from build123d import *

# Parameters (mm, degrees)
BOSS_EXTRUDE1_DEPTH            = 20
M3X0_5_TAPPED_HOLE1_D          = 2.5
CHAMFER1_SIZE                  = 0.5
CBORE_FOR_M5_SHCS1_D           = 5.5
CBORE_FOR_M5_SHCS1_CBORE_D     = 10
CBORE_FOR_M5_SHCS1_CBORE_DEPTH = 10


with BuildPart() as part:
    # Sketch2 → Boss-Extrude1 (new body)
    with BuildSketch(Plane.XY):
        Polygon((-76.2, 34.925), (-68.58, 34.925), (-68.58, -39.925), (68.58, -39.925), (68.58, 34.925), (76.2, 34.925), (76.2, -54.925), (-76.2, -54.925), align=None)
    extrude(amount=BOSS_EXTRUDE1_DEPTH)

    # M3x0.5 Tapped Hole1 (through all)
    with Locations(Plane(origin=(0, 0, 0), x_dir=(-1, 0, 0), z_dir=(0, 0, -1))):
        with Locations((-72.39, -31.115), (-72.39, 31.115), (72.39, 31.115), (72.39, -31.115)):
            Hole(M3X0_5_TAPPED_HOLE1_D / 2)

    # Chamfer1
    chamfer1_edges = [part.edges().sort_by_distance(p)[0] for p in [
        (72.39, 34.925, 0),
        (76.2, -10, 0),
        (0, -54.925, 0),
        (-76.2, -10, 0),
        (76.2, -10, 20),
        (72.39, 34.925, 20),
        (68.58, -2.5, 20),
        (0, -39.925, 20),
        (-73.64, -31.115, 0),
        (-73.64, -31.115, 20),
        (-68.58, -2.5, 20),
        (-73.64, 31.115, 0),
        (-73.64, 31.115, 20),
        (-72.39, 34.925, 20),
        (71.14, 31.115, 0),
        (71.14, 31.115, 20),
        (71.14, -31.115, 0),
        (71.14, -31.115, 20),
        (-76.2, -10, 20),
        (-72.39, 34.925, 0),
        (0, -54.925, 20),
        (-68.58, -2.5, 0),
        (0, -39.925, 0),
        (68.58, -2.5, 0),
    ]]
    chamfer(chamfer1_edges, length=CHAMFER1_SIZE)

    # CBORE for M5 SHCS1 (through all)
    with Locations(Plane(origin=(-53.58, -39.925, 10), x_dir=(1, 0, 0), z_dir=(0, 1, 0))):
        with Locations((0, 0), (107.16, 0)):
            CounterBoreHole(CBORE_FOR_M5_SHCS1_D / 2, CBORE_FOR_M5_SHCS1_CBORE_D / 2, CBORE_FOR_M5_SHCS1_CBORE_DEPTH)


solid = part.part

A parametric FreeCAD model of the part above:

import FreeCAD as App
import Part
import Sketcher
Q = App.Units.Quantity


def edges_at(feature, points):
    """Names of the edges that pass closest to the given points."""
    edges = feature.Shape.Edges
    near = lambda p: min(range(len(edges)), key=lambda i: edges[i].distToShape(Part.Vertex(*p))[0])
    return sorted({f"Edge{near(p) + 1}" for p in points})

doc = App.newDocument("Part")
body = doc.addObject("PartDesign::Body", "Body")

sketch1 = body.newObject("Sketcher::SketchObject", "Sketch")
sketch1.AttachmentSupport = (doc.getObject("XY_Plane"), [""])
sketch1.MapMode = "FlatFace"
sketch1.addGeometry(Part.LineSegment(App.Vector(-68.58, 34.925, 0), App.Vector(-76.2, 34.925, 0)), False)
sketch1.addGeometry(Part.LineSegment(App.Vector(-76.2, 34.925, 0), App.Vector(-76.2, -54.925, 0)), False)
sketch1.addGeometry(Part.LineSegment(App.Vector(-76.2, -54.925, 0), App.Vector(76.2, -54.925, 0)), False)
sketch1.addGeometry(Part.LineSegment(App.Vector(76.2, -54.925, 0), App.Vector(76.2, 34.925, 0)), False)
sketch1.addGeometry(Part.LineSegment(App.Vector(76.2, 34.925, 0), App.Vector(68.58, 34.925, 0)), False)
sketch1.addGeometry(Part.LineSegment(App.Vector(68.58, 34.925, 0), App.Vector(68.58, -39.925, 0)), False)
sketch1.addGeometry(Part.LineSegment(App.Vector(68.58, -39.925, 0), App.Vector(-68.58, -39.925, 0)), False)
sketch1.addGeometry(Part.LineSegment(App.Vector(-68.58, -39.925, 0), App.Vector(-68.58, 34.925, 0)), False)
sketch1.addConstraint(Sketcher.Constraint("Coincident", 0, 2, 1, 1))
sketch1.addConstraint(Sketcher.Constraint("Coincident", 1, 2, 2, 1))
sketch1.addConstraint(Sketcher.Constraint("Coincident", 2, 2, 3, 1))
sketch1.addConstraint(Sketcher.Constraint("Coincident", 3, 2, 4, 1))
sketch1.addConstraint(Sketcher.Constraint("Coincident", 4, 2, 5, 1))
sketch1.addConstraint(Sketcher.Constraint("Coincident", 5, 2, 6, 1))
sketch1.addConstraint(Sketcher.Constraint("Coincident", 6, 2, 7, 1))
sketch1.addConstraint(Sketcher.Constraint("Coincident", 7, 2, 0, 1))
sketch1.addConstraint(Sketcher.Constraint("Horizontal", 0))
sketch1.addConstraint(Sketcher.Constraint("Vertical", 1))
sketch1.addConstraint(Sketcher.Constraint("Horizontal", 2))
sketch1.addConstraint(Sketcher.Constraint("Vertical", 3))
sketch1.addConstraint(Sketcher.Constraint("Horizontal", 4))
sketch1.addConstraint(Sketcher.Constraint("Vertical", 5))
sketch1.addConstraint(Sketcher.Constraint("Horizontal", 6))
sketch1.addConstraint(Sketcher.Constraint("Vertical", 7))
sketch1.addConstraint(Sketcher.Constraint("Symmetric", 0, 2, 3, 2, -2))
sketch1.addConstraint(Sketcher.Constraint("Equal", 0, 4))
sketch1.addConstraint(Sketcher.Constraint("DistanceX", 2, 1, 2, 2, Q("152.4 mm")))
sketch1.addConstraint(Sketcher.Constraint("DistanceY", 2, 2, 5, 2, Q("15 mm")))
sketch1.addConstraint(Sketcher.Constraint("DistanceX", 0, 2, 0, 1, Q("7.62 mm")))
sketch1.addConstraint(Sketcher.Constraint("DistanceY", 1, 2, 1, 1, Q("89.85 mm")))
sketch1.addConstraint(Sketcher.Constraint("DistanceY", -1, 1, 0, 2, Q("34.925 mm")))
pad1 = body.newObject("PartDesign::Pad", "Pad")
pad1.Profile = sketch1
pad1.Length = 20

sketch2 = body.newObject("Sketcher::SketchObject", "Sketch001")
sketch2.AttachmentSupport = (doc.getObject("XY_Plane"), [""])
sketch2.MapMode = "FlatFace"
sketch2.addGeometry(Part.Circle(App.Vector(72.39, -31.115, 0), App.Vector(0, 0, 1), 1.25), False)
sketch2.addGeometry(Part.Circle(App.Vector(72.39, 31.115, 0), App.Vector(0, 0, 1), 1.25), False)
sketch2.addGeometry(Part.Circle(App.Vector(-72.39, 31.115, 0), App.Vector(0, 0, 1), 1.25), False)
sketch2.addGeometry(Part.Circle(App.Vector(-72.39, -31.115, 0), App.Vector(0, 0, 1), 1.25), False)
sketch2.addConstraint(Sketcher.Constraint("Equal", 0, 1))
sketch2.addConstraint(Sketcher.Constraint("Equal", 1, 2))
sketch2.addConstraint(Sketcher.Constraint("Equal", 2, 3))
sketch2.addConstraint(Sketcher.Constraint("Symmetric", 0, 3, 2, 3, -1, 1))
sketch2.addConstraint(Sketcher.Constraint("Symmetric", 1, 3, 3, 3, -1, 1))
sketch2.addConstraint(Sketcher.Constraint("Symmetric", 1, 3, 2, 3, -2))
sketch2.addConstraint(Sketcher.Constraint("Diameter", 0, Q("2.5 mm")))
sketch2.addConstraint(Sketcher.Constraint("DistanceX", -1, 1, 0, 3, Q("72.39 mm")))
sketch2.addConstraint(Sketcher.Constraint("DistanceY", 0, 3, 1, 3, Q("62.23 mm")))
doc.recompute()
hole = body.newObject("PartDesign::Hole", "Hole")
hole.Profile = sketch2
hole.ThreadType = "None"
hole.Diameter = 2.5
hole.DepthType = "ThroughAll"
hole.Reversed = True
doc.recompute()

chamfer = body.newObject("PartDesign::Chamfer", "Chamfer")
chamfer.Base = (hole, edges_at(hole, [
    (72.39, 34.925, 0),
    (76.2, -10, 0),
    (0, -54.925, 0),
    (-76.2, -10, 0),
    (76.2, -10, 20),
    (72.39, 34.925, 20),
    (68.58, -2.5, 20),
    (0, -39.925, 20),
    (-73.64, -31.115, 0),
    (-73.64, -31.115, 20),
    (-68.58, -2.5, 20),
    (-73.64, 31.115, 0),
    (-73.64, 31.115, 20),
    (-72.39, 34.925, 20),
    (71.14, 31.115, 0),
    (71.14, 31.115, 20),
    (71.14, -31.115, 0),
    (71.14, -31.115, 20),
    (-76.2, -10, 20),
    (-72.39, 34.925, 0),
    (0, -54.925, 20),
    (-68.58, -2.5, 0),
    (0, -39.925, 0),
    (68.58, -2.5, 0),
]))
chamfer.Size = 0.5

sketch3 = body.newObject("Sketcher::SketchObject", "Sketch002")
sketch3.AttachmentSupport = (doc.getObject("XZ_Plane"), [""])
sketch3.MapMode = "FlatFace"
sketch3.AttachmentOffset = App.Placement(App.Vector(0, 0, 39.925), App.Rotation())
sketch3.addGeometry(Part.Circle(App.Vector(-53.58, 10, 0), App.Vector(0, 0, 1), 2.75), False)
sketch3.addGeometry(Part.Circle(App.Vector(53.58, 10, 0), App.Vector(0, 0, 1), 2.75), False)
sketch3.addConstraint(Sketcher.Constraint("Equal", 0, 1))
sketch3.addConstraint(Sketcher.Constraint("Symmetric", 0, 3, 1, 3, -2))
sketch3.addConstraint(Sketcher.Constraint("Diameter", 0, Q("5.5 mm")))
sketch3.addConstraint(Sketcher.Constraint("DistanceY", -1, 1, 0, 3, Q("10 mm")))
sketch3.addConstraint(Sketcher.Constraint("DistanceX", 0, 3, -1, 1, Q("53.58 mm")))
doc.recompute()
hole2 = body.newObject("PartDesign::Hole", "Hole001")
hole2.Profile = sketch3
hole2.ThreadType = "None"
hole2.Diameter = 5.5
hole2.DepthType = "ThroughAll"
hole2.HoleCutType = "Counterbore"
hole2.HoleCutDiameter = 10
hole2.HoleCutDepth = 10
hole2.Reversed = True

doc.recompute()
